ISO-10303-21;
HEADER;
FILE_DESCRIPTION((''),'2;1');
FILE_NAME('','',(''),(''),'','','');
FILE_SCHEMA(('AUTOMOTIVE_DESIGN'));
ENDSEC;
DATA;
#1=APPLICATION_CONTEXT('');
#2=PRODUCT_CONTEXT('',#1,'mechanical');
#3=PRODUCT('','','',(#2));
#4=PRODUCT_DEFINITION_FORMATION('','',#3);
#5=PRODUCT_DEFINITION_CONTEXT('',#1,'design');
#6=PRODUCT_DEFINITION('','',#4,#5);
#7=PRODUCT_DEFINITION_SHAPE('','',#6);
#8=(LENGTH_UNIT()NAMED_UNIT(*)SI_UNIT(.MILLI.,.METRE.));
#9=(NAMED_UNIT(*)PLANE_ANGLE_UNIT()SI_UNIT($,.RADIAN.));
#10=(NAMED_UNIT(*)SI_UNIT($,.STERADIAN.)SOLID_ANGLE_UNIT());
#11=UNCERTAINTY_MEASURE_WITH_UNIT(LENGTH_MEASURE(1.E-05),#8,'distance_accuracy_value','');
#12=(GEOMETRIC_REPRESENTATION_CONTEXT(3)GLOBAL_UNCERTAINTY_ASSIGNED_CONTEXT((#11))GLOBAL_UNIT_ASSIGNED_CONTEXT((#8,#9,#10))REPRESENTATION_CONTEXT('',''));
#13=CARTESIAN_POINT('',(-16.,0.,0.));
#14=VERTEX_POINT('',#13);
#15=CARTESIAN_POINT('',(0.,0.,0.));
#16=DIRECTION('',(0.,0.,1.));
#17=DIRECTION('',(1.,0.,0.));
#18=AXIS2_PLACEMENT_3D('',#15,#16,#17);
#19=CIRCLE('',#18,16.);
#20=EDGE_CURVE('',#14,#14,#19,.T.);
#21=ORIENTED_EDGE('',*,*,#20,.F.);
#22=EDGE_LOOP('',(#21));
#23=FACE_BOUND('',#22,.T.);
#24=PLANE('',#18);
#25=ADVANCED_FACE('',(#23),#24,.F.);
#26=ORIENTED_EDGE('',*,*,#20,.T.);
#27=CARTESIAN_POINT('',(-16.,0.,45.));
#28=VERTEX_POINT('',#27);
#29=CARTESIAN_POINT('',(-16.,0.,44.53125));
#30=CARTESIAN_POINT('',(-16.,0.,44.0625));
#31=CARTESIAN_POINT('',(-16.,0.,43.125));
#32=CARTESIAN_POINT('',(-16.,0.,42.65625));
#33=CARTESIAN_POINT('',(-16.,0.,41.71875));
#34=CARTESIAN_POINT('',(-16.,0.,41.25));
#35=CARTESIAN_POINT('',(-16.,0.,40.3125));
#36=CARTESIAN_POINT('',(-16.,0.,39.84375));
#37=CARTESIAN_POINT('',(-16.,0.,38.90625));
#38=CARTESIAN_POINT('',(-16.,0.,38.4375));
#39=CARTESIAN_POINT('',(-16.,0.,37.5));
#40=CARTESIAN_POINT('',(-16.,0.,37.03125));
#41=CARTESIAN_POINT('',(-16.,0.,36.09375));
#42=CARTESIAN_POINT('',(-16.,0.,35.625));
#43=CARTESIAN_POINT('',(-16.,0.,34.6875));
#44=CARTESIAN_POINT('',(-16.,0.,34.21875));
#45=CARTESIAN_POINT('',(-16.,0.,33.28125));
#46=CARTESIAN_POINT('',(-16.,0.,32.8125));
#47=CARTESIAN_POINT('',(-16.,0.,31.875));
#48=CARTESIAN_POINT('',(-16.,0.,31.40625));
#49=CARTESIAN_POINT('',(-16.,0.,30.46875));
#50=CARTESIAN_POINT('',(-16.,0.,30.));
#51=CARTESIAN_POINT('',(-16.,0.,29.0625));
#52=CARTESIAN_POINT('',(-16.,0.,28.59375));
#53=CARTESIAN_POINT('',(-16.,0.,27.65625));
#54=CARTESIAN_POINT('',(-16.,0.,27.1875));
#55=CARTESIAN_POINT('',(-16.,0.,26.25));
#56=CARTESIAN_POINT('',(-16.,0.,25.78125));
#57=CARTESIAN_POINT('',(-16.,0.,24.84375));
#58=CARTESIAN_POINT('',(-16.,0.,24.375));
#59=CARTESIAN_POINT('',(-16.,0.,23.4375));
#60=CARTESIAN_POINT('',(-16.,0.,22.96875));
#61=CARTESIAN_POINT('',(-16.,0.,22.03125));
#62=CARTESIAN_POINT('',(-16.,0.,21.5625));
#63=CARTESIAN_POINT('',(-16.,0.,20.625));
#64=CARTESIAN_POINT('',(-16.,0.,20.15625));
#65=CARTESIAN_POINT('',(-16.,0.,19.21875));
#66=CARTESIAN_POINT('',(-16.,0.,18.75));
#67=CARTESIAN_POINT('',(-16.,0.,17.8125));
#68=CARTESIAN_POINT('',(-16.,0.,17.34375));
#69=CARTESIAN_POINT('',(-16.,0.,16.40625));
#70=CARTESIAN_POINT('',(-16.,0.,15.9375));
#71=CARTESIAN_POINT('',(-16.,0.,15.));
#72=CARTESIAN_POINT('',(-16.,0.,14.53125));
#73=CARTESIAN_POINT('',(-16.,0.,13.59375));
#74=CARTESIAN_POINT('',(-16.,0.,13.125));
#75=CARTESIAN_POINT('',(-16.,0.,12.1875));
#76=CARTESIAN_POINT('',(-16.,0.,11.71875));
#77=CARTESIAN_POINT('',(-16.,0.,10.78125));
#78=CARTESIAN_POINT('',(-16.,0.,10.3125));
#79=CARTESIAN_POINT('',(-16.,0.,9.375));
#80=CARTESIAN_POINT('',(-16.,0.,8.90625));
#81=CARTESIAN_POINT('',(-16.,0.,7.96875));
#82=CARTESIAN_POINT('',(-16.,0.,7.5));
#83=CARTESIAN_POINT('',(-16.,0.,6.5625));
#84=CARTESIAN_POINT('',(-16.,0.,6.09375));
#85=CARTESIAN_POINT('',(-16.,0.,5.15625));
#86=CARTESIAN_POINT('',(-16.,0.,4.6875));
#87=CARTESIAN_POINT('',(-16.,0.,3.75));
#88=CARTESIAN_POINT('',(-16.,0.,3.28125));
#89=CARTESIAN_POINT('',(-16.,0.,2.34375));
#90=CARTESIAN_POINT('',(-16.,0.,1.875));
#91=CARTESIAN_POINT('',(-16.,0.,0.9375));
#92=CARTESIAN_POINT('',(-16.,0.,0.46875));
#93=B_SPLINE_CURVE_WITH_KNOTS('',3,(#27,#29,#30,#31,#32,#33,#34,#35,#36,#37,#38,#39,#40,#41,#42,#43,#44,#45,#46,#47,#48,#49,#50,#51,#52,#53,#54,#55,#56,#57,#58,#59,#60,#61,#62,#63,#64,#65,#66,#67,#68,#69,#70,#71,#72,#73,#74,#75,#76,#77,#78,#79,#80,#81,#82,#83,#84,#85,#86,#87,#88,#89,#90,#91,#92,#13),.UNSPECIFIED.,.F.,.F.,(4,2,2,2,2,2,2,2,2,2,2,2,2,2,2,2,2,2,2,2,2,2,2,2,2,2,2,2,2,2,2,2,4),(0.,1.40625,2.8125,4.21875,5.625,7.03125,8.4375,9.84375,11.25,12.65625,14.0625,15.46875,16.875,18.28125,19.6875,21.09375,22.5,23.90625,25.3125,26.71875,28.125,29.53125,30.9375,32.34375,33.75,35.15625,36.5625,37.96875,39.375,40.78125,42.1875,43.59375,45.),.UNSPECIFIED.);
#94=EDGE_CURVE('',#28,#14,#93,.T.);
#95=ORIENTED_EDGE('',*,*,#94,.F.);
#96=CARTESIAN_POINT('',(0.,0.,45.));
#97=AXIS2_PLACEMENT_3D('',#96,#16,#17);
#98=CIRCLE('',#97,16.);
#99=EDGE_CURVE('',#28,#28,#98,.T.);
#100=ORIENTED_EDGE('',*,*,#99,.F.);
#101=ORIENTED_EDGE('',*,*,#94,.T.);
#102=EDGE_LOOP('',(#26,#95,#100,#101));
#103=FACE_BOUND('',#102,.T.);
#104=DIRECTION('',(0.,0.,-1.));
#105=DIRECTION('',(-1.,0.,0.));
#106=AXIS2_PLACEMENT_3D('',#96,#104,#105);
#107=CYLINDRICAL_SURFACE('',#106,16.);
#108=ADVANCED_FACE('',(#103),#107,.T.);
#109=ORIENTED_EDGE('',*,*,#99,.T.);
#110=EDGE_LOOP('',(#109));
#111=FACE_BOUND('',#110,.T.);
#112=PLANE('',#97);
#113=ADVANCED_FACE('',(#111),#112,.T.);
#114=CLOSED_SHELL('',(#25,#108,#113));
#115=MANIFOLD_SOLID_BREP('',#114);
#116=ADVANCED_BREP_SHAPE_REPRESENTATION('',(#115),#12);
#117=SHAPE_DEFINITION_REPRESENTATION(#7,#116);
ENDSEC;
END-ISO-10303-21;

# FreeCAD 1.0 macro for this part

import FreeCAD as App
import Part
import Sketcher
from FreeCAD import Vector
Q = App.Units.Quantity

doc = App.newDocument("Part")
body = doc.addObject("PartDesign::Body", "Body")

# Sketch on XY plane
sketch1 = body.newObject("Sketcher::SketchObject", "Sketch")
sketch1.AttachmentSupport = (doc.getObject("XY_Plane"), [""])
sketch1.MapMode = "FlatFace"
sketch1.addGeometry(Part.Circle(Vector(0, 0, 0), Vector(0, 0, 1), 16), False)
sketch1.addConstraint(Sketcher.Constraint("Coincident", 0, 3, -1, 1))
sketch1.addConstraint(Sketcher.Constraint("Diameter", 0, Q("32 mm")))
pad1 = body.newObject("PartDesign::Pad", "Pad")
pad1.Profile = sketch1
pad1.Length = 45

doc.recompute()
